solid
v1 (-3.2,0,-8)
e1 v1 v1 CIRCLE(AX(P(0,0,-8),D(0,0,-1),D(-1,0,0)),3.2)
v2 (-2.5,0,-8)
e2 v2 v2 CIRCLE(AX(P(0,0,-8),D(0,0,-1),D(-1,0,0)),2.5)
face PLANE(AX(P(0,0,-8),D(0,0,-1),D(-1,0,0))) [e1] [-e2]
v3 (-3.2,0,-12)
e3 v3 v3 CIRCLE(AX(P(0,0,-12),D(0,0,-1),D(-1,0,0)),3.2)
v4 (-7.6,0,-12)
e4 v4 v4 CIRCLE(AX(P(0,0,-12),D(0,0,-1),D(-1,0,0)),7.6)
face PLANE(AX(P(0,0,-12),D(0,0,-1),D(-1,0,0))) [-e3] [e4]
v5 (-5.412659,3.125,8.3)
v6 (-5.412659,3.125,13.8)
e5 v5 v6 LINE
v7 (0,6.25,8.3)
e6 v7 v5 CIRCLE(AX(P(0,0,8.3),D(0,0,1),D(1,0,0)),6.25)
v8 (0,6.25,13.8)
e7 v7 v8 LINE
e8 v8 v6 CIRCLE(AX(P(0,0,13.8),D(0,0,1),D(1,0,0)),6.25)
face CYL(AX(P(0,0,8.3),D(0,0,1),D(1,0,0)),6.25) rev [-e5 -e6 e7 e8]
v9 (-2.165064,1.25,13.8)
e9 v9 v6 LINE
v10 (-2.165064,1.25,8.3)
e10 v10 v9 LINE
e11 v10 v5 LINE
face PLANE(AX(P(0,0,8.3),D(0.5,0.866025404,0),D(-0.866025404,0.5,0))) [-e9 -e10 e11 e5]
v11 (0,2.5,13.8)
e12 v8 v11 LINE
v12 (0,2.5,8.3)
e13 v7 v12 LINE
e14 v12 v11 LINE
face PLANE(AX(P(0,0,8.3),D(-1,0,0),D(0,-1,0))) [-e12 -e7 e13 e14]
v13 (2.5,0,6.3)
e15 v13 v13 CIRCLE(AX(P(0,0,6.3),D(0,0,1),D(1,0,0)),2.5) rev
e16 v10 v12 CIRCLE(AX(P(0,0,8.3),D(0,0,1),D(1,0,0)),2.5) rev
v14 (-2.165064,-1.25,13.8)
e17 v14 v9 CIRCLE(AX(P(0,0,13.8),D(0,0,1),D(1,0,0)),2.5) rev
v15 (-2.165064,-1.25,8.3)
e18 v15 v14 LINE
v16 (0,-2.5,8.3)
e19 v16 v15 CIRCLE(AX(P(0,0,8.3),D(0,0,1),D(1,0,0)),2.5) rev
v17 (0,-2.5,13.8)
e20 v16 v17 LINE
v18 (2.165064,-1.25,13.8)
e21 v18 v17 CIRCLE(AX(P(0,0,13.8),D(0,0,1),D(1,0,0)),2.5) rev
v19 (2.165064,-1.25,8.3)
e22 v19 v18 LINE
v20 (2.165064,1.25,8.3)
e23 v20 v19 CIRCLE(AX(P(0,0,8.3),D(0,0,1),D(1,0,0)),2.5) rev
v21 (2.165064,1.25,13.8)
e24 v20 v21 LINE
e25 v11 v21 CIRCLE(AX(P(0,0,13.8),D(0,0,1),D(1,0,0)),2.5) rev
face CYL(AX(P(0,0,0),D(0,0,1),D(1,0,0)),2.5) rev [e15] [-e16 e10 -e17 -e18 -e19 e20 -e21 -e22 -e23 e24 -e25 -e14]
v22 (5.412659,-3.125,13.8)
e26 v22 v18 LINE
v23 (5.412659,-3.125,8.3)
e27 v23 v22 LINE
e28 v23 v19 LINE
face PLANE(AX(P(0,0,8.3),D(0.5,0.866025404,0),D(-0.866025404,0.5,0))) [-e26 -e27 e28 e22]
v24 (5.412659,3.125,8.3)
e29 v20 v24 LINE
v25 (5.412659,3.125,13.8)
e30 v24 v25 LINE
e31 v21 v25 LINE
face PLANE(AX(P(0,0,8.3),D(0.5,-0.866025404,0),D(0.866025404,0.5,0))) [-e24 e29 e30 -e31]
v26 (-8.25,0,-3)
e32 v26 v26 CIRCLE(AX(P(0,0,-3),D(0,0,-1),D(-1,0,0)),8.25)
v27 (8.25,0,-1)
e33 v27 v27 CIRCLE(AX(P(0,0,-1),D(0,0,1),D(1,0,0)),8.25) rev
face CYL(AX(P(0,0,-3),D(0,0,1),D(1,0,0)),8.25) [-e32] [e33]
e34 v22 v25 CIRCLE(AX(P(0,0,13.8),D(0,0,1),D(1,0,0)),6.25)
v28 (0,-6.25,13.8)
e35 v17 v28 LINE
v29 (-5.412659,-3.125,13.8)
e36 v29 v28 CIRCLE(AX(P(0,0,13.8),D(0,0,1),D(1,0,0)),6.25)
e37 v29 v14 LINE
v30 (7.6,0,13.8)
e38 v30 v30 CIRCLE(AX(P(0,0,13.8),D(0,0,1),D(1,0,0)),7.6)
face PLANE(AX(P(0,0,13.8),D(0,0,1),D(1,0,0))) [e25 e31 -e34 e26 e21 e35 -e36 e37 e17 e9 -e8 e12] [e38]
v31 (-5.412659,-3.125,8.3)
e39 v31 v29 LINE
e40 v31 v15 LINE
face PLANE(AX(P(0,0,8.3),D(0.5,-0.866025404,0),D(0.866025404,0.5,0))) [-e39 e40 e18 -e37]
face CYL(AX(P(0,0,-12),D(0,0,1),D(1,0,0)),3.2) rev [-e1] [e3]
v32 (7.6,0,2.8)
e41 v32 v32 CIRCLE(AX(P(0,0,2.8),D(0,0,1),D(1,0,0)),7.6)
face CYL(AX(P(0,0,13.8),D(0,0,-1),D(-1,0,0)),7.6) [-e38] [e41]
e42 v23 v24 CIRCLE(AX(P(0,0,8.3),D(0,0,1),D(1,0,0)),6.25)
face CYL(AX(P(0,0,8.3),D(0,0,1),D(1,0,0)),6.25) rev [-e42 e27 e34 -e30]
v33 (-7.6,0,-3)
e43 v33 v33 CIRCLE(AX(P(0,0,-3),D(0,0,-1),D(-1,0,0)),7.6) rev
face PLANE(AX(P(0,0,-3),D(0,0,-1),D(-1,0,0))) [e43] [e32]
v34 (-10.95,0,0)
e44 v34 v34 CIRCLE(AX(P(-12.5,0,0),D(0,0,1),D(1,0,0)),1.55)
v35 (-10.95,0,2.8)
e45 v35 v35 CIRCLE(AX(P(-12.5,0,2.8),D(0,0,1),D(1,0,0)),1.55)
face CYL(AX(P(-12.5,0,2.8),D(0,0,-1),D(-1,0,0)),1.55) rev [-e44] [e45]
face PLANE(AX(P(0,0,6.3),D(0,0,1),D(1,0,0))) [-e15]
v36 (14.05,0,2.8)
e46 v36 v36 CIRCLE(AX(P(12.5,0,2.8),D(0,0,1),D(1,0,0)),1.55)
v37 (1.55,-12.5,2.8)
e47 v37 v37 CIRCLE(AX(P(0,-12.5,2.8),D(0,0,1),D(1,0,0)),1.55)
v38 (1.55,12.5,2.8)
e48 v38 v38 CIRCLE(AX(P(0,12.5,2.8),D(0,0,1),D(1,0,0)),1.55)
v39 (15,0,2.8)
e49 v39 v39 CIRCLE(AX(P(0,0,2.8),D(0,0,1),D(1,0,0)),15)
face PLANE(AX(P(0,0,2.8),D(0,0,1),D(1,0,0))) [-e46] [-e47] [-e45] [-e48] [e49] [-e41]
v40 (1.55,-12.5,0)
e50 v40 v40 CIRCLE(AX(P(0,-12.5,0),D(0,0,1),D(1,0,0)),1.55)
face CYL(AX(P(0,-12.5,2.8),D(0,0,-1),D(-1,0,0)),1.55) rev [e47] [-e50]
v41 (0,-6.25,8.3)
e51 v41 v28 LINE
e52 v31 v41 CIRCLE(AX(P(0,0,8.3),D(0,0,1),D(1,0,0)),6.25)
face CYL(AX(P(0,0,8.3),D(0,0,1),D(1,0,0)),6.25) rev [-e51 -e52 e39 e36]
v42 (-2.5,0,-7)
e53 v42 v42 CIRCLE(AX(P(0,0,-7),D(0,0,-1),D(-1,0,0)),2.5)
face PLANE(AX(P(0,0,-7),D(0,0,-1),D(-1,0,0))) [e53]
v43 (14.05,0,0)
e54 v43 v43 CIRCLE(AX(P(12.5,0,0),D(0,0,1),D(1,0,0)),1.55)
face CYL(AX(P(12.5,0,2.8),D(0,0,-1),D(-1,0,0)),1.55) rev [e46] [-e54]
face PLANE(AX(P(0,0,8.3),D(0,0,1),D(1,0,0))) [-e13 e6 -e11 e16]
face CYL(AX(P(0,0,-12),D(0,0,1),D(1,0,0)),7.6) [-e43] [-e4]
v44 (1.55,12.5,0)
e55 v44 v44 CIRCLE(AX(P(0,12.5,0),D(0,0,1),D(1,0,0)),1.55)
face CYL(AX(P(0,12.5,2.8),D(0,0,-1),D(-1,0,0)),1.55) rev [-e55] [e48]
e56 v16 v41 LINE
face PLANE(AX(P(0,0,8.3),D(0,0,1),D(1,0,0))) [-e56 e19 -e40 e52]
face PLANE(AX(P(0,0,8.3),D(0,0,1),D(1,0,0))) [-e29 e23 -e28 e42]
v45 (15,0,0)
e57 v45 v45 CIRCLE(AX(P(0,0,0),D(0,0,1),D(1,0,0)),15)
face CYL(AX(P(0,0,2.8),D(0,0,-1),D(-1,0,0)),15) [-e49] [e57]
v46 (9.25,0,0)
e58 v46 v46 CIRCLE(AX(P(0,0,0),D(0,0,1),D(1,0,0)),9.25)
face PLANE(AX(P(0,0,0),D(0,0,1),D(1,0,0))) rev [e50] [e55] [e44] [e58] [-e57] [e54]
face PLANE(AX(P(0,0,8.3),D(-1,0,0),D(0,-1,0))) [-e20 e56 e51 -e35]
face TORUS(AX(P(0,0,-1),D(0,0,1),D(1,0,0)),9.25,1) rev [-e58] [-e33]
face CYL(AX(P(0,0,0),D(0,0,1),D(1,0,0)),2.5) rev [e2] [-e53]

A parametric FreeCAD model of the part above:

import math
import FreeCAD as App
import Part
import Sketcher

V = App.Vector
Q = App.Units.Quantity


def edges_at(feature, points):
    """Names of the edges that pass closest to the given points."""
    edges = feature.Shape.Edges
    near = lambda p: min(range(len(edges)), key=lambda i: edges[i].distToShape(Part.Vertex(*p))[0])
    return sorted({f"Edge{near(p) + 1}" for p in points})

doc = App.newDocument("Part")
body = doc.addObject("PartDesign::Body", "Body")

# Sketch on XY plane
sketch1 = body.newObject("Sketcher::SketchObject", "Sketch")
sketch1.AttachmentSupport = (doc.getObject("XY_Plane"), [""])
sketch1.MapMode = "FlatFace"
sketch1.addGeometry([
    Part.Circle(V(0, 0, 0), V(0, 0, 1), 15),  # 0
    Part.Circle(V(0, -12.5, 0), V(0, 0, 1), 1.6),  # 1
    Part.Circle(V(-12.5, 0, 0), V(0, 0, 1), 1.6),  # 2
    Part.Circle(V(12.5, 0, 0), V(0, 0, 1), 1.6),  # 3
    Part.Circle(V(0, 12.5, 0), V(0, 0, 1), 1.6),  # 4
], False)
sketch1.addConstraint([
    Sketcher.Constraint("Coincident", 0, 3, -1, 1),
    Sketcher.Constraint("Equal", 1, 2),
    Sketcher.Constraint("Equal", 2, 3),
    Sketcher.Constraint("Equal", 3, 4),
    Sketcher.Constraint("Symmetric", 2, 3, 3, 3, -1, 1),
    Sketcher.Constraint("Symmetric", 1, 3, 4, 3, -1, 1),
    Sketcher.Constraint("PointOnObject", 1, 3, -2),
    Sketcher.Constraint("PointOnObject", 2, 3, -1),
    Sketcher.Constraint("Diameter", 0, 30.0),
    Sketcher.Constraint("Diameter", 1, 3.1),
    Sketcher.Constraint("DistanceX", 2, 3, 3, 3, 25.0),
    Sketcher.Constraint("DistanceY", 1, 3, 4, 3, 25.0),
])
pad1 = body.newObject("PartDesign::Pad", "Pad")
pad1.Profile = sketch1
pad1.Length = 2.8

# Sketch on XY plane
sketch2 = body.newObject("Sketcher::SketchObject", "Sketch001")
sketch2.AttachmentSupport = (doc.getObject("XY_Plane"), [""])
sketch2.MapMode = "FlatFace"
sketch2.AttachmentOffset = App.Placement(V(0, 0, 2.8), App.Rotation())
sketch2.addGeometry(Part.Circle(V(0, 0, 0), V(0, 0, 1), 8), False)
sketch2.addConstraint([
    Sketcher.Constraint("Coincident", 0, 3, -1, 1),
    Sketcher.Constraint("Diameter", 0, 15.2),
])
pad2 = body.newObject("PartDesign::Pad", "Pad001")
pad2.Profile = sketch2
pad2.Length = 11

# Sketch on XY plane
sketch3 = body.newObject("Sketcher::SketchObject", "Sketch002")
sketch3.AttachmentSupport = (doc.getObject("XY_Plane"), [""])
sketch3.MapMode = "FlatFace"
sketch3.AttachmentOffset = App.Placement(V(0, 0, 13.8), App.Rotation())
sketch3.addGeometry(Part.Circle(V(0, 0, 0), V(0, 0, 1), 2.5), False)
sketch3.addConstraint([
    Sketcher.Constraint("Coincident", 0, 3, -1, 1),
    Sketcher.Constraint("Diameter", 0, 5.0),
])
pocket1 = body.newObject("PartDesign::Pocket", "Pocket")
pocket1.Profile = sketch3
pocket1.Type = "ThroughAll"
pocket1.Midplane = True

# Sketch on XY plane
sketch4 = body.newObject("Sketcher::SketchObject", "Sketch003")
sketch4.AttachmentSupport = (doc.getObject("XY_Plane"), [""])
sketch4.MapMode = "FlatFace"
sketch4.AttachmentOffset = App.Placement(V(0, 0, 13.8), App.Rotation())
sketch4.addGeometry(Part.Circle(V(0, 0, 0), V(0, 0, 1), 5), False)
sketch4.addConstraint([
    Sketcher.Constraint("Coincident", 0, 3, -1, 1),
    Sketcher.Constraint("Diameter", 0, 10.0),
])
pocket2 = body.newObject("PartDesign::Pocket", "Pocket001")
pocket2.Profile = sketch4
pocket2.Length = 5.5

# Sketch on XY plane
sketch5 = body.newObject("Sketcher::SketchObject", "Sketch004")
sketch5.AttachmentSupport = (doc.getObject("XY_Plane"), [""])
sketch5.MapMode = "FlatFace"
sketch5.AttachmentOffset = App.Placement(V(0, 0, -12), App.Rotation())
sketch5.addGeometry([
    Part.Circle(V(0, 0, 0), V(0, 0, 1), 7.6),
    Part.Circle(V(0, 0, 0), V(0, 0, 1), 3.2),
], False)
sketch5.addConstraint([
    Sketcher.Constraint("Coincident", 0, 3, -1, 1),
    Sketcher.Constraint("Coincident", 1, 3, -1, 1),
    Sketcher.Constraint("Diameter", 0, 15.2),
    Sketcher.Constraint("Diameter", 1, 6.4),
])
pad3 = body.newObject("PartDesign::Pad", "Pad002")
pad3.Profile = sketch5
pad3.Length = 12

# Sketch on XY plane
sketch6 = body.newObject("Sketcher::SketchObject", "Sketch005")
sketch6.AttachmentSupport = (doc.getObject("XY_Plane"), [""])
sketch6.MapMode = "FlatFace"
sketch6.addGeometry([
    Part.Circle(V(0, 0, 0), V(0, 0, 1), 3.2),
    Part.Circle(V(0, 0, 0), V(0, 0, 1), 2.5),
], False)
sketch6.addConstraint([
    Sketcher.Constraint("Coincident", 0, 3, -1, 1),
    Sketcher.Constraint("Coincident", 1, 3, -1, 1),
    Sketcher.Constraint("Diameter", 1, 5.0),
    Sketcher.Constraint("Diameter", 0, 6.4),
])
pad4 = body.newObject("PartDesign::Pad", "Pad003")
pad4.Profile = sketch6
pad4.Length = 8
pad4.Reversed = True

# Sketch on XY plane
sketch7 = body.newObject("Sketcher::SketchObject", "Sketch006")
sketch7.AttachmentSupport = (doc.getObject("XY_Plane"), [""])
sketch7.MapMode = "FlatFace"
sketch7.AttachmentOffset = App.Placement(V(0, 0, -3), App.Rotation())
sketch7.addGeometry([
    Part.Circle(V(0, 0, 0), V(0, 0, 1), 8),
    Part.Circle(V(0, 0, 0), V(0, 0, 1), 8),
], False)
sketch7.addConstraint([
    Sketcher.Constraint("Coincident", 0, 3, -1, 1),
    Sketcher.Constraint("Coincident", 1, 3, -1, 1),
    Sketcher.Constraint("Diameter", 0, 16.5),
    Sketcher.Constraint("Diameter", 1, 15.2),
])
pad5 = body.newObject("PartDesign::Pad", "Pad004")
pad5.Profile = sketch7
pad5.Length = 3
doc.recompute()

fillet = body.newObject("PartDesign::Fillet", "Fillet")
fillet.Base = (pad5, edges_at(pad5, [(-8.25, 0, 0)]))
fillet.Radius = 1

# Sketch on XY plane
sketch8 = body.newObject("Sketcher::SketchObject", "Sketch007")
sketch8.AttachmentSupport = (doc.getObject("XY_Plane"), [""])
sketch8.MapMode = "FlatFace"
sketch8.AttachmentOffset = App.Placement(V(0, 0, 13.8), App.Rotation())
sketch8.addGeometry([
    Part.Circle(V(0, 0, 0), V(0, 0, 1), 5),
    Part.Circle(V(0, 0, 0), V(0, 0, 1), 2.5),
], False)
sketch8.addConstraint([
    Sketcher.Constraint("Coincident", 0, 3, -1, 1),
    Sketcher.Constraint("Coincident", 1, 3, -1, 1),
    Sketcher.Constraint("Diameter", 0, 10.0),
    Sketcher.Constraint("Diameter", 1, 5.0),
])
pad6 = body.newObject("PartDesign::Pad", "Pad005")
pad6.Profile = sketch8
pad6.Length = 5.5
pad6.Reversed = True

# Sketch on XY plane
sketch9 = body.newObject("Sketcher::SketchObject", "Sketch008")
sketch9.AttachmentSupport = (doc.getObject("XY_Plane"), [""])
sketch9.MapMode = "FlatFace"
sketch9.AttachmentOffset = App.Placement(V(0, 0, 13.8), App.Rotation())
sketch9.addGeometry([
    Part.LineSegment(V(0, 0, 0), V(5, -3, 0)),  # 0
    Part.ArcOfCircle(Part.Circle(V(0, 0, 0), V(0, 0, 1), 6), math.radians(-30), math.radians(30)),  # 1
    Part.LineSegment(V(5, 3, 0), V(0, 0, 0)),  # 2
    Part.LineSegment(V(-5, 3, 0), V(0, 0, 0)),  # 3
    Part.LineSegment(V(0, 0, 0), V(0, 6, 0)),  # 4
    Part.ArcOfCircle(Part.Circle(V(0, 0, 0), V(0, 0, 1), 6), math.radians(90), math.radians(150)),  # 5
    Part.LineSegment(V(0, -6, 0), V(0, 0, 0)),  # 6
    Part.LineSegment(V(0, 0, 0), V(-5, -3, 0)),  # 7
    Part.ArcOfCircle(Part.Circle(V(0, 0, 0), V(0, 0, 1), 6), math.radians(-150), math.radians(-90)),  # 8
], False)
sketch9.addConstraint([
    Sketcher.Constraint("Coincident", 0, 2, 1, 1),
    Sketcher.Constraint("Coincident", 1, 2, 2, 1),
    Sketcher.Constraint("Coincident", 2, 2, 0, 1),
    Sketcher.Constraint("Coincident", 3, 2, 4, 1),
    Sketcher.Constraint("Coincident", 4, 2, 5, 1),
    Sketcher.Constraint("Coincident", 5, 2, 3, 1),
    Sketcher.Constraint("Coincident", 6, 2, 7, 1),
    Sketcher.Constraint("Coincident", 7, 2, 8, 1),
    Sketcher.Constraint("Coincident", 8, 2, 6, 1),
    Sketcher.Constraint("Vertical", 4),
    Sketcher.Constraint("Vertical", 6),
    Sketcher.Constraint("Coincident", 1, 3, -1, 1),
    Sketcher.Constraint("Coincident", 5, 3, -1, 1),
    Sketcher.Constraint("Coincident", 8, 3, -1, 1),
    Sketcher.Constraint("Coincident", 2, 2, -1, 1),
    Sketcher.Constraint("Coincident", 3, 2, -1, 1),
    Sketcher.Constraint("Coincident", 6, 2, -1, 1),
    Sketcher.Constraint("Equal", 1, 5),
    Sketcher.Constraint("Equal", 5, 8),
    Sketcher.Constraint("Parallel", 0, 3),
    Sketcher.Constraint("Parallel", 2, 7),
    Sketcher.Constraint("Horizontal", 1, 2, 5, 2),
    Sketcher.Constraint("Angle", 0, Q("-30 deg")),
    Sketcher.Constraint("Radius", 1, 6.25),
])
pocket3 = body.newObject("PartDesign::Pocket", "Pocket002")
pocket3.Profile = sketch9
pocket3.Length = 5.5

# Sketch on XY plane
sketch10 = body.newObject("Sketcher::SketchObject", "Sketch009")
sketch10.AttachmentSupport = (doc.getObject("XY_Plane"), [""])
sketch10.MapMode = "FlatFace"
sketch10.AttachmentOffset = App.Placement(V(0, 0, 6.3), App.Rotation())
sketch10.addGeometry(Part.Circle(V(0, 0, 0), V(0, 0, 1), 2.5), False)
sketch10.addConstraint([
    Sketcher.Constraint("Coincident", 0, 3, -1, 1),
    Sketcher.Constraint("Diameter", 0, 5.0),
])
pad7 = body.newObject("PartDesign::Pad", "Pad006")
pad7.Profile = sketch10
pad7.Length = 13.3
pad7.Reversed = True

doc.recompute()
